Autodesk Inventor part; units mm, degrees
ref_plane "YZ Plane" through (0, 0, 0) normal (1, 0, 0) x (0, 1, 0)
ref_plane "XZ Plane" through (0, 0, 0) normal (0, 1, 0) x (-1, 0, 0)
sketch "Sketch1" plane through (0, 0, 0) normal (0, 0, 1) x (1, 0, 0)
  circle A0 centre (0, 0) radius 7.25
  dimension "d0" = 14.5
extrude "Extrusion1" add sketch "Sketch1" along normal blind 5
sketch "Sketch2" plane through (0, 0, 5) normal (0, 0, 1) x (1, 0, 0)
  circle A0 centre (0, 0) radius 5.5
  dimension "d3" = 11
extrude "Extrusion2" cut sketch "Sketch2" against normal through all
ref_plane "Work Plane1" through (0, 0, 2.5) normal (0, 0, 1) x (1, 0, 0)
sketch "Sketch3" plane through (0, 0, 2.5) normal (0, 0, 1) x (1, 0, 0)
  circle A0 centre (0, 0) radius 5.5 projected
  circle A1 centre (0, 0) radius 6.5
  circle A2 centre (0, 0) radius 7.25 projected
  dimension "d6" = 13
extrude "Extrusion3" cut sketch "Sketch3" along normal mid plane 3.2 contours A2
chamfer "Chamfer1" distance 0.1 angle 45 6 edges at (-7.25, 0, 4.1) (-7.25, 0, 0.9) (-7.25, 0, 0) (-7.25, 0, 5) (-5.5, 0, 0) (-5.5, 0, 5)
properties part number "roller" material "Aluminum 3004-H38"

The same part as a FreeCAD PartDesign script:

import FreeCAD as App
import Part
import Sketcher
Q = App.Units.Quantity


def edges_at(feature, points):
    """Names of the edges that pass closest to the given points."""
    edges = feature.Shape.Edges
    near = lambda p: min(range(len(edges)), key=lambda i: edges[i].distToShape(Part.Vertex(*p))[0])
    return sorted({f"Edge{near(p) + 1}" for p in points})

doc = App.newDocument("Part")
body = doc.addObject("PartDesign::Body", "Body")

# Sketch on XY plane
sketch1 = body.newObject("Sketcher::SketchObject", "Sketch")
sketch1.AttachmentSupport = (doc.getObject("XY_Plane"), [""])
sketch1.MapMode = "FlatFace"
sketch1.addGeometry(Part.Circle(App.Vector(0, 0, 0), App.Vector(0, 0, 1), 7), False)
sketch1.addConstraint(Sketcher.Constraint("Coincident", 0, 3, -1, 1))
sketch1.addConstraint(Sketcher.Constraint("Diameter", 0, Q("14.5 mm")))
pad1 = body.newObject("PartDesign::Pad", "Pad")
pad1.Profile = sketch1
pad1.Length = 5

# Sketch on XY plane
sketch2 = body.newObject("Sketcher::SketchObject", "Sketch001")
sketch2.AttachmentSupport = (doc.getObject("XY_Plane"), [""])
sketch2.MapMode = "FlatFace"
sketch2.AttachmentOffset = App.Placement(App.Vector(0, 0, 5), App.Rotation())
sketch2.addGeometry(Part.Circle(App.Vector(0, 0, 0), App.Vector(0, 0, 1), 6), False)
sketch2.addConstraint(Sketcher.Constraint("Coincident", 0, 3, -1, 1))
sketch2.addConstraint(Sketcher.Constraint("Diameter", 0, Q("11 mm")))
pocket1 = body.newObject("PartDesign::Pocket", "Pocket")
pocket1.Profile = sketch2
pocket1.Type = "ThroughAll"

# Sketch on XY plane
sketch3 = body.newObject("Sketcher::SketchObject", "Sketch002")
sketch3.AttachmentSupport = (doc.getObject("XY_Plane"), [""])
sketch3.MapMode = "FlatFace"
sketch3.AttachmentOffset = App.Placement(App.Vector(0, 0, 2.5), App.Rotation())
sketch3.addGeometry(Part.Circle(App.Vector(0, 0, 0), App.Vector(0, 0, 1), 7), False)
sketch3.addGeometry(Part.Circle(App.Vector(0, 0, 0), App.Vector(0, 0, 1), 6), False)
sketch3.addConstraint(Sketcher.Constraint("Coincident", 0, 3, -1, 1))
sketch3.addConstraint(Sketcher.Constraint("Coincident", 1, 3, -1, 1))
sketch3.addConstraint(Sketcher.Constraint("Diameter", 1, Q("13 mm")))
sketch3.addConstraint(Sketcher.Constraint("Diameter", 0, Q("14.5 mm")))
pocket2 = body.newObject("PartDesign::Pocket", "Pocket001")
pocket2.Profile = sketch3
pocket2.Length = 3.2
pocket2.Midplane = True
doc.recompute()

chamfer = body.newObject("PartDesign::Chamfer", "Chamfer")
chamfer.Base = (pocket2, edges_at(pocket2, [
    (-7.25, 0, 4.1),
    (-7.25, 0, 0.9),
    (-7.25, 0, 0),
    (-7.25, 0, 5),
    (-5.5, 0, 0),
    (-5.5, 0, 5),
]))
chamfer.Size = 0.1

doc.recompute()
